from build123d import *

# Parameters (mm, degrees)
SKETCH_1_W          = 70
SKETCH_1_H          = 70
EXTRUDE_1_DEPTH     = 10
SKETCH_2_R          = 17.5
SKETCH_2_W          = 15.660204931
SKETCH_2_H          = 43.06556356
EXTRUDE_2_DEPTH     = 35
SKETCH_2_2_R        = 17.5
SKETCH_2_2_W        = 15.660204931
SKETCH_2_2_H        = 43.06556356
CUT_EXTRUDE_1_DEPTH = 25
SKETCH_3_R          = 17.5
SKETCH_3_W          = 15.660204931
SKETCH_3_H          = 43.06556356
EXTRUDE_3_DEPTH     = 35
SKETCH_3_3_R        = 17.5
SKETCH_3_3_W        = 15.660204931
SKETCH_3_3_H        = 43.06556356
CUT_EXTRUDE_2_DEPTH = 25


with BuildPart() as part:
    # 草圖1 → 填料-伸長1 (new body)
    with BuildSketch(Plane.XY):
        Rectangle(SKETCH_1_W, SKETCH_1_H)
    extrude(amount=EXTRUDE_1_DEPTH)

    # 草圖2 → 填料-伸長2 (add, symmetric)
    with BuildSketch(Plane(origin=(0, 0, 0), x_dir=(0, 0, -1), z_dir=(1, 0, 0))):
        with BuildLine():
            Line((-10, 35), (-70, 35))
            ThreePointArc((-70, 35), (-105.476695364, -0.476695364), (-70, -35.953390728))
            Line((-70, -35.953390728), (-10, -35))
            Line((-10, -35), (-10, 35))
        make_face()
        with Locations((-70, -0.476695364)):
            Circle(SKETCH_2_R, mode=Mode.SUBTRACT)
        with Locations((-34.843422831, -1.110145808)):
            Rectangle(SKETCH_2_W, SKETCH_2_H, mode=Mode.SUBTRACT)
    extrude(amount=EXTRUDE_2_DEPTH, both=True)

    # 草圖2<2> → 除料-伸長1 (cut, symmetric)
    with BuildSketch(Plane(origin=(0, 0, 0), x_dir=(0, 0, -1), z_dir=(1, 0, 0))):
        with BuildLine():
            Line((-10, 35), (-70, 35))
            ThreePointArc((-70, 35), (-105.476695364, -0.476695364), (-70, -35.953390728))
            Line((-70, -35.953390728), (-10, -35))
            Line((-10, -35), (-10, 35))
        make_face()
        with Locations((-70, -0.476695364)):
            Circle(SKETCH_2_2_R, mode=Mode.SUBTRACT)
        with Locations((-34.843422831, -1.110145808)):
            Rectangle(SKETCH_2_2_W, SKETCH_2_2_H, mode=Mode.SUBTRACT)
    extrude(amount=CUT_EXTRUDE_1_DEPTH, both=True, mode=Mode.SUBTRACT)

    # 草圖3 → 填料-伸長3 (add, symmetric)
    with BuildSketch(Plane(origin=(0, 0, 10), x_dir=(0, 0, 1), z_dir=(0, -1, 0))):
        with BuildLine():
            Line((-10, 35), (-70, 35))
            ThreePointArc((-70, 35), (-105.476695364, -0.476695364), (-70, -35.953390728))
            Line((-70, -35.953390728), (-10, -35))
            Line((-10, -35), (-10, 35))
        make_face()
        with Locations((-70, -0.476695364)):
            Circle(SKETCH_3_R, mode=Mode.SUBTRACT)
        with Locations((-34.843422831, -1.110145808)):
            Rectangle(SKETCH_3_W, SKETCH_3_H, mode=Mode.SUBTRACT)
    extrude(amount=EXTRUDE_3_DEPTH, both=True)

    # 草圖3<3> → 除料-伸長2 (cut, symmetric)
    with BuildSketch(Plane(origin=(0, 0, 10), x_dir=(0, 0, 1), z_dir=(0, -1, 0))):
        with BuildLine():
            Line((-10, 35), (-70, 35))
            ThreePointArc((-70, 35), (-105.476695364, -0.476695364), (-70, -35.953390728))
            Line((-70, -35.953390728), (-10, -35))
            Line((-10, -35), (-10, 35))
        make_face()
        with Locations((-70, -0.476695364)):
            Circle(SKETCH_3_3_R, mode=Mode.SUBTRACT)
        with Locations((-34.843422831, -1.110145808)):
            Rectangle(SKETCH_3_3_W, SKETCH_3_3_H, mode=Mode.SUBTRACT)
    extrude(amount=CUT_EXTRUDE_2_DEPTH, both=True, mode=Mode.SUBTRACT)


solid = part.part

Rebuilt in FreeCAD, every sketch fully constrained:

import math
import FreeCAD as App
import Part
import Sketcher

V = App.Vector
Q = App.Units.Quantity

doc = App.newDocument("Part")
body = doc.addObject("PartDesign::Body", "Body")

sketch1 = body.newObject("Sketcher::SketchObject", "Sketch")
sketch1.AttachmentSupport = (doc.getObject("XY_Plane"), [""])
sketch1.MapMode = "FlatFace"
sketch1.addGeometry([
    Part.LineSegment(V(-35, 35, 0), V(-35, -35, 0)),
    Part.LineSegment(V(-35, -35, 0), V(35, -35, 0)),
    Part.LineSegment(V(35, -35, 0), V(35, 35, 0)),
    Part.LineSegment(V(35, 35, 0), V(-35, 35, 0)),
], False)
sketch1.addConstraint([
    Sketcher.Constraint("Coincident", 0, 2, 1, 1),
    Sketcher.Constraint("Coincident", 1, 2, 2, 1),
    Sketcher.Constraint("Coincident", 2, 2, 3, 1),
    Sketcher.Constraint("Coincident", 3, 2, 0, 1),
    Sketcher.Constraint("Vertical", 0),
    Sketcher.Constraint("Horizontal", 1),
    Sketcher.Constraint("Vertical", 2),
    Sketcher.Constraint("Horizontal", 3),
    Sketcher.Constraint("Symmetric", 0, 2, 2, 2, -1, 1),
    Sketcher.Constraint("Equal", 3, 0),
    Sketcher.Constraint("DistanceX", 1, 1, 1, 2, Q("70 mm")),
])
pad1 = body.newObject("PartDesign::Pad", "Pad")
pad1.Profile = sketch1
pad1.Length = 10

sketch2 = body.newObject("Sketcher::SketchObject", "Sketch001")
sketch2.AttachmentSupport = (doc.getObject("YZ_Plane"), [""])
sketch2.MapMode = "FlatFace"
sketch2.addGeometry([
    Part.LineSegment(V(35, 10, 0), V(35, 70, 0)),
    Part.ArcOfCircle(Part.Circle(V(-0.476695, 70, 0), V(0, 0, 1), 35.476695), math.radians(0), math.radians(180)),
    Part.LineSegment(V(-35.953391, 70, 0), V(-35, 10, 0)),
    Part.LineSegment(V(-35, 10, 0), V(35, 10, 0)),
    Part.LineSegment(V(-22.642928, 27.01332, 0), V(-22.642928, 42.673525, 0)),
    Part.LineSegment(V(-22.642928, 42.673525, 0), V(20.422636, 42.673525, 0)),
    Part.LineSegment(V(20.422636, 42.673525, 0), V(20.422636, 27.01332, 0)),
    Part.LineSegment(V(20.422636, 27.01332, 0), V(-22.642928, 27.01332, 0)),
    Part.Circle(V(-0.476695, 70, 0), V(0, 0, 1), 17.5),
], False)
sketch2.addConstraint([
    Sketcher.Constraint("Tangent", 0, 2, 1, 1),
    Sketcher.Constraint("Coincident", 1, 2, 2, 1),
    Sketcher.Constraint("Coincident", 2, 2, 3, 1),
    Sketcher.Constraint("Coincident", 3, 2, 0, 1),
    Sketcher.Constraint("Coincident", 4, 2, 5, 1),
    Sketcher.Constraint("Coincident", 5, 2, 6, 1),
    Sketcher.Constraint("Coincident", 6, 2, 7, 1),
    Sketcher.Constraint("Coincident", 7, 2, 4, 1),
    Sketcher.Constraint("Vertical", 0),
    Sketcher.Constraint("Horizontal", 3),
    Sketcher.Constraint("Vertical", 4),
    Sketcher.Constraint("Horizontal", 5),
    Sketcher.Constraint("Vertical", 6),
    Sketcher.Constraint("Horizontal", 7),
    Sketcher.Constraint("Coincident", 8, 3, 1, 3),
    Sketcher.Constraint("Horizontal", 0, 2, 1, 2),
    Sketcher.Constraint("Diameter", 8, Q("35 mm")),
    Sketcher.Constraint("DistanceX", 3, 1, 3, 2, Q("70 mm")),
    Sketcher.Constraint("DistanceY", 0, 1, 0, 2, Q("60 mm")),
    Sketcher.Constraint("DistanceY", -1, 1, 1, 3, Q("70 mm")),
    Sketcher.Constraint("DistanceX", -1, 1, 0, 2, Q("35 mm")),
    Sketcher.Constraint("Radius", 1, Q("35.476695 mm")),
    Sketcher.Constraint("DistanceX", 5, 1, 5, 2, Q("43.065564 mm")),
    Sketcher.Constraint("DistanceY", 4, 1, 4, 2, Q("15.660205 mm")),
    Sketcher.Constraint("DistanceY", -1, 1, 6, 2, Q("27.01332 mm")),
    Sketcher.Constraint("DistanceX", 1, 3, 5, 2, Q("20.899331 mm")),
])
pad2 = body.newObject("PartDesign::Pad", "Pad001")
pad2.Profile = sketch2
pad2.Length = 70
pad2.Midplane = True

sketch3 = body.newObject("Sketcher::SketchObject", "Sketch002")
sketch3.AttachmentSupport = (doc.getObject("YZ_Plane"), [""])
sketch3.MapMode = "FlatFace"
sketch3.addGeometry([
    Part.LineSegment(V(35, 10, 0), V(35, 70, 0)),
    Part.ArcOfCircle(Part.Circle(V(-0.476695, 70, 0), V(0, 0, 1), 35.476695), math.radians(0), math.radians(180)),
    Part.LineSegment(V(-35.953391, 70, 0), V(-35, 10, 0)),
    Part.LineSegment(V(-35, 10, 0), V(35, 10, 0)),
    Part.LineSegment(V(-22.642928, 27.01332, 0), V(-22.642928, 42.673525, 0)),
    Part.LineSegment(V(-22.642928, 42.673525, 0), V(20.422636, 42.673525, 0)),
    Part.LineSegment(V(20.422636, 42.673525, 0), V(20.422636, 27.01332, 0)),
    Part.LineSegment(V(20.422636, 27.01332, 0), V(-22.642928, 27.01332, 0)),
    Part.Circle(V(-0.476695, 70, 0), V(0, 0, 1), 17.5),
], False)
sketch3.addConstraint([
    Sketcher.Constraint("Tangent", 0, 2, 1, 1),
    Sketcher.Constraint("Coincident", 1, 2, 2, 1),
    Sketcher.Constraint("Coincident", 2, 2, 3, 1),
    Sketcher.Constraint("Coincident", 3, 2, 0, 1),
    Sketcher.Constraint("Coincident", 4, 2, 5, 1),
    Sketcher.Constraint("Coincident", 5, 2, 6, 1),
    Sketcher.Constraint("Coincident", 6, 2, 7, 1),
    Sketcher.Constraint("Coincident", 7, 2, 4, 1),
    Sketcher.Constraint("Vertical", 0),
    Sketcher.Constraint("Horizontal", 3),
    Sketcher.Constraint("Vertical", 4),
    Sketcher.Constraint("Horizontal", 5),
    Sketcher.Constraint("Vertical", 6),
    Sketcher.Constraint("Horizontal", 7),
    Sketcher.Constraint("Coincident", 8, 3, 1, 3),
    Sketcher.Constraint("Horizontal", 0, 2, 1, 2),
    Sketcher.Constraint("Diameter", 8, Q("35 mm")),
    Sketcher.Constraint("DistanceX", 3, 1, 3, 2, Q("70 mm")),
    Sketcher.Constraint("DistanceY", 0, 1, 0, 2, Q("60 mm")),
    Sketcher.Constraint("DistanceY", -1, 1, 1, 3, Q("70 mm")),
    Sketcher.Constraint("DistanceX", -1, 1, 0, 2, Q("35 mm")),
    Sketcher.Constraint("Radius", 1, Q("35.476695 mm")),
    Sketcher.Constraint("DistanceX", 5, 1, 5, 2, Q("43.065564 mm")),
    Sketcher.Constraint("DistanceY", 4, 1, 4, 2, Q("15.660205 mm")),
    Sketcher.Constraint("DistanceY", -1, 1, 6, 2, Q("27.01332 mm")),
    Sketcher.Constraint("DistanceX", 1, 3, 5, 2, Q("20.899331 mm")),
])
pocket1 = body.newObject("PartDesign::Pocket", "Pocket")
pocket1.Profile = sketch3
pocket1.Length = 50
pocket1.Midplane = True

sketch4 = body.newObject("Sketcher::SketchObject", "Sketch003")
sketch4.AttachmentSupport = (doc.getObject("XZ_Plane"), [""])
sketch4.MapMode = "FlatFace"
sketch4.addGeometry([
    Part.LineSegment(V(-35, 0, 0), V(-35, -60, 0)),
    Part.ArcOfCircle(Part.Circle(V(0.476695, -60, 0), V(0, 0, 1), 35.476695), math.radians(180), math.radians(360)),
    Part.LineSegment(V(35.953391, -60, 0), V(35, 0, 0)),
    Part.LineSegment(V(35, 0, 0), V(-35, 0, 0)),
    Part.LineSegment(V(22.642928, -17.01332, 0), V(22.642928, -32.673525, 0)),
    Part.LineSegment(V(22.642928, -32.673525, 0), V(-20.422636, -32.673525, 0)),
    Part.LineSegment(V(-20.422636, -32.673525, 0), V(-20.422636, -17.01332, 0)),
    Part.LineSegment(V(-20.422636, -17.01332, 0), V(22.642928, -17.01332, 0)),
    Part.Circle(V(0.476695, -60, 0), V(0, 0, 1), 17.5),
], False)
sketch4.addConstraint([
    Sketcher.Constraint("Tangent", 0, 2, 1, 1),
    Sketcher.Constraint("Coincident", 1, 2, 2, 1),
    Sketcher.Constraint("Coincident", 2, 2, 3, 1),
    Sketcher.Constraint("Coincident", 3, 2, 0, 1),
    Sketcher.Constraint("Coincident", 4, 2, 5, 1),
    Sketcher.Constraint("Coincident", 5, 2, 6, 1),
    Sketcher.Constraint("Coincident", 6, 2, 7, 1),
    Sketcher.Constraint("Coincident", 7, 2, 4, 1),
    Sketcher.Constraint("Vertical", 0),
    Sketcher.Constraint("Horizontal", 3),
    Sketcher.Constraint("Vertical", 4),
    Sketcher.Constraint("Horizontal", 5),
    Sketcher.Constraint("Vertical", 6),
    Sketcher.Constraint("Horizontal", 7),
    Sketcher.Constraint("Coincident", 8, 3, 1, 3),
    Sketcher.Constraint("Symmetric", 2, 2, 3, 2, -1, 1),
    Sketcher.Constraint("Horizontal", 0, 2, 1, 2),
    Sketcher.Constraint("Diameter", 8, Q("35 mm")),
    Sketcher.Constraint("DistanceX", 3, 2, 3, 1, Q("70 mm")),
    Sketcher.Constraint("DistanceY", 0, 2, 0, 1, Q("60 mm")),
    Sketcher.Constraint("Radius", 1, Q("35.476695 mm")),
    Sketcher.Constraint("DistanceX", 5, 2, 5, 1, Q("43.065564 mm")),
    Sketcher.Constraint("DistanceY", 4, 2, 4, 1, Q("15.660205 mm")),
    Sketcher.Constraint("DistanceY", 6, 2, -1, 1, Q("17.01332 mm")),
    Sketcher.Constraint("DistanceX", 5, 2, 1, 3, Q("20.899331 mm")),
])
pad3 = body.newObject("PartDesign::Pad", "Pad002")
pad3.Profile = sketch4
pad3.Length = 70
pad3.Midplane = True

sketch5 = body.newObject("Sketcher::SketchObject", "Sketch004")
sketch5.AttachmentSupport = (doc.getObject("XZ_Plane"), [""])
sketch5.MapMode = "FlatFace"
sketch5.addGeometry([
    Part.LineSegment(V(-35, 0, 0), V(-35, -60, 0)),
    Part.ArcOfCircle(Part.Circle(V(0.476695, -60, 0), V(0, 0, 1), 35.476695), math.radians(180), math.radians(360)),
    Part.LineSegment(V(35.953391, -60, 0), V(35, 0, 0)),
    Part.LineSegment(V(35, 0, 0), V(-35, 0, 0)),
    Part.LineSegment(V(22.642928, -17.01332, 0), V(22.642928, -32.673525, 0)),
    Part.LineSegment(V(22.642928, -32.673525, 0), V(-20.422636, -32.673525, 0)),
    Part.LineSegment(V(-20.422636, -32.673525, 0), V(-20.422636, -17.01332, 0)),
    Part.LineSegment(V(-20.422636, -17.01332, 0), V(22.642928, -17.01332, 0)),
    Part.Circle(V(0.476695, -60, 0), V(0, 0, 1), 17.5),
], False)
sketch5.addConstraint([
    Sketcher.Constraint("Tangent", 0, 2, 1, 1),
    Sketcher.Constraint("Coincident", 1, 2, 2, 1),
    Sketcher.Constraint("Coincident", 2, 2, 3, 1),
    Sketcher.Constraint("Coincident", 3, 2, 0, 1),
    Sketcher.Constraint("Coincident", 4, 2, 5, 1),
    Sketcher.Constraint("Coincident", 5, 2, 6, 1),
    Sketcher.Constraint("Coincident", 6, 2, 7, 1),
    Sketcher.Constraint("Coincident", 7, 2, 4, 1),
    Sketcher.Constraint("Vertical", 0),
    Sketcher.Constraint("Horizontal", 3),
    Sketcher.Constraint("Vertical", 4),
    Sketcher.Constraint("Horizontal", 5),
    Sketcher.Constraint("Vertical", 6),
    Sketcher.Constraint("Horizontal", 7),
    Sketcher.Constraint("Coincident", 8, 3, 1, 3),
    Sketcher.Constraint("Symmetric", 2, 2, 3, 2, -1, 1),
    Sketcher.Constraint("Horizontal", 0, 2, 1, 2),
    Sketcher.Constraint("Diameter", 8, Q("35 mm")),
    Sketcher.Constraint("DistanceX", 3, 2, 3, 1, Q("70 mm")),
    Sketcher.Constraint("DistanceY", 0, 2, 0, 1, Q("60 mm")),
    Sketcher.Constraint("Radius", 1, Q("35.476695 mm")),
    Sketcher.Constraint("DistanceX", 5, 2, 5, 1, Q("43.065564 mm")),
    Sketcher.Constraint("DistanceY", 4, 2, 4, 1, Q("15.660205 mm")),
    Sketcher.Constraint("DistanceY", 6, 2, -1, 1, Q("17.01332 mm")),
    Sketcher.Constraint("DistanceX", 5, 2, 1, 3, Q("20.899331 mm")),
])
pocket2 = body.newObject("PartDesign::Pocket", "Pocket001")
pocket2.Profile = sketch5
pocket2.Length = 50
pocket2.Midplane = True

doc.recompute()
